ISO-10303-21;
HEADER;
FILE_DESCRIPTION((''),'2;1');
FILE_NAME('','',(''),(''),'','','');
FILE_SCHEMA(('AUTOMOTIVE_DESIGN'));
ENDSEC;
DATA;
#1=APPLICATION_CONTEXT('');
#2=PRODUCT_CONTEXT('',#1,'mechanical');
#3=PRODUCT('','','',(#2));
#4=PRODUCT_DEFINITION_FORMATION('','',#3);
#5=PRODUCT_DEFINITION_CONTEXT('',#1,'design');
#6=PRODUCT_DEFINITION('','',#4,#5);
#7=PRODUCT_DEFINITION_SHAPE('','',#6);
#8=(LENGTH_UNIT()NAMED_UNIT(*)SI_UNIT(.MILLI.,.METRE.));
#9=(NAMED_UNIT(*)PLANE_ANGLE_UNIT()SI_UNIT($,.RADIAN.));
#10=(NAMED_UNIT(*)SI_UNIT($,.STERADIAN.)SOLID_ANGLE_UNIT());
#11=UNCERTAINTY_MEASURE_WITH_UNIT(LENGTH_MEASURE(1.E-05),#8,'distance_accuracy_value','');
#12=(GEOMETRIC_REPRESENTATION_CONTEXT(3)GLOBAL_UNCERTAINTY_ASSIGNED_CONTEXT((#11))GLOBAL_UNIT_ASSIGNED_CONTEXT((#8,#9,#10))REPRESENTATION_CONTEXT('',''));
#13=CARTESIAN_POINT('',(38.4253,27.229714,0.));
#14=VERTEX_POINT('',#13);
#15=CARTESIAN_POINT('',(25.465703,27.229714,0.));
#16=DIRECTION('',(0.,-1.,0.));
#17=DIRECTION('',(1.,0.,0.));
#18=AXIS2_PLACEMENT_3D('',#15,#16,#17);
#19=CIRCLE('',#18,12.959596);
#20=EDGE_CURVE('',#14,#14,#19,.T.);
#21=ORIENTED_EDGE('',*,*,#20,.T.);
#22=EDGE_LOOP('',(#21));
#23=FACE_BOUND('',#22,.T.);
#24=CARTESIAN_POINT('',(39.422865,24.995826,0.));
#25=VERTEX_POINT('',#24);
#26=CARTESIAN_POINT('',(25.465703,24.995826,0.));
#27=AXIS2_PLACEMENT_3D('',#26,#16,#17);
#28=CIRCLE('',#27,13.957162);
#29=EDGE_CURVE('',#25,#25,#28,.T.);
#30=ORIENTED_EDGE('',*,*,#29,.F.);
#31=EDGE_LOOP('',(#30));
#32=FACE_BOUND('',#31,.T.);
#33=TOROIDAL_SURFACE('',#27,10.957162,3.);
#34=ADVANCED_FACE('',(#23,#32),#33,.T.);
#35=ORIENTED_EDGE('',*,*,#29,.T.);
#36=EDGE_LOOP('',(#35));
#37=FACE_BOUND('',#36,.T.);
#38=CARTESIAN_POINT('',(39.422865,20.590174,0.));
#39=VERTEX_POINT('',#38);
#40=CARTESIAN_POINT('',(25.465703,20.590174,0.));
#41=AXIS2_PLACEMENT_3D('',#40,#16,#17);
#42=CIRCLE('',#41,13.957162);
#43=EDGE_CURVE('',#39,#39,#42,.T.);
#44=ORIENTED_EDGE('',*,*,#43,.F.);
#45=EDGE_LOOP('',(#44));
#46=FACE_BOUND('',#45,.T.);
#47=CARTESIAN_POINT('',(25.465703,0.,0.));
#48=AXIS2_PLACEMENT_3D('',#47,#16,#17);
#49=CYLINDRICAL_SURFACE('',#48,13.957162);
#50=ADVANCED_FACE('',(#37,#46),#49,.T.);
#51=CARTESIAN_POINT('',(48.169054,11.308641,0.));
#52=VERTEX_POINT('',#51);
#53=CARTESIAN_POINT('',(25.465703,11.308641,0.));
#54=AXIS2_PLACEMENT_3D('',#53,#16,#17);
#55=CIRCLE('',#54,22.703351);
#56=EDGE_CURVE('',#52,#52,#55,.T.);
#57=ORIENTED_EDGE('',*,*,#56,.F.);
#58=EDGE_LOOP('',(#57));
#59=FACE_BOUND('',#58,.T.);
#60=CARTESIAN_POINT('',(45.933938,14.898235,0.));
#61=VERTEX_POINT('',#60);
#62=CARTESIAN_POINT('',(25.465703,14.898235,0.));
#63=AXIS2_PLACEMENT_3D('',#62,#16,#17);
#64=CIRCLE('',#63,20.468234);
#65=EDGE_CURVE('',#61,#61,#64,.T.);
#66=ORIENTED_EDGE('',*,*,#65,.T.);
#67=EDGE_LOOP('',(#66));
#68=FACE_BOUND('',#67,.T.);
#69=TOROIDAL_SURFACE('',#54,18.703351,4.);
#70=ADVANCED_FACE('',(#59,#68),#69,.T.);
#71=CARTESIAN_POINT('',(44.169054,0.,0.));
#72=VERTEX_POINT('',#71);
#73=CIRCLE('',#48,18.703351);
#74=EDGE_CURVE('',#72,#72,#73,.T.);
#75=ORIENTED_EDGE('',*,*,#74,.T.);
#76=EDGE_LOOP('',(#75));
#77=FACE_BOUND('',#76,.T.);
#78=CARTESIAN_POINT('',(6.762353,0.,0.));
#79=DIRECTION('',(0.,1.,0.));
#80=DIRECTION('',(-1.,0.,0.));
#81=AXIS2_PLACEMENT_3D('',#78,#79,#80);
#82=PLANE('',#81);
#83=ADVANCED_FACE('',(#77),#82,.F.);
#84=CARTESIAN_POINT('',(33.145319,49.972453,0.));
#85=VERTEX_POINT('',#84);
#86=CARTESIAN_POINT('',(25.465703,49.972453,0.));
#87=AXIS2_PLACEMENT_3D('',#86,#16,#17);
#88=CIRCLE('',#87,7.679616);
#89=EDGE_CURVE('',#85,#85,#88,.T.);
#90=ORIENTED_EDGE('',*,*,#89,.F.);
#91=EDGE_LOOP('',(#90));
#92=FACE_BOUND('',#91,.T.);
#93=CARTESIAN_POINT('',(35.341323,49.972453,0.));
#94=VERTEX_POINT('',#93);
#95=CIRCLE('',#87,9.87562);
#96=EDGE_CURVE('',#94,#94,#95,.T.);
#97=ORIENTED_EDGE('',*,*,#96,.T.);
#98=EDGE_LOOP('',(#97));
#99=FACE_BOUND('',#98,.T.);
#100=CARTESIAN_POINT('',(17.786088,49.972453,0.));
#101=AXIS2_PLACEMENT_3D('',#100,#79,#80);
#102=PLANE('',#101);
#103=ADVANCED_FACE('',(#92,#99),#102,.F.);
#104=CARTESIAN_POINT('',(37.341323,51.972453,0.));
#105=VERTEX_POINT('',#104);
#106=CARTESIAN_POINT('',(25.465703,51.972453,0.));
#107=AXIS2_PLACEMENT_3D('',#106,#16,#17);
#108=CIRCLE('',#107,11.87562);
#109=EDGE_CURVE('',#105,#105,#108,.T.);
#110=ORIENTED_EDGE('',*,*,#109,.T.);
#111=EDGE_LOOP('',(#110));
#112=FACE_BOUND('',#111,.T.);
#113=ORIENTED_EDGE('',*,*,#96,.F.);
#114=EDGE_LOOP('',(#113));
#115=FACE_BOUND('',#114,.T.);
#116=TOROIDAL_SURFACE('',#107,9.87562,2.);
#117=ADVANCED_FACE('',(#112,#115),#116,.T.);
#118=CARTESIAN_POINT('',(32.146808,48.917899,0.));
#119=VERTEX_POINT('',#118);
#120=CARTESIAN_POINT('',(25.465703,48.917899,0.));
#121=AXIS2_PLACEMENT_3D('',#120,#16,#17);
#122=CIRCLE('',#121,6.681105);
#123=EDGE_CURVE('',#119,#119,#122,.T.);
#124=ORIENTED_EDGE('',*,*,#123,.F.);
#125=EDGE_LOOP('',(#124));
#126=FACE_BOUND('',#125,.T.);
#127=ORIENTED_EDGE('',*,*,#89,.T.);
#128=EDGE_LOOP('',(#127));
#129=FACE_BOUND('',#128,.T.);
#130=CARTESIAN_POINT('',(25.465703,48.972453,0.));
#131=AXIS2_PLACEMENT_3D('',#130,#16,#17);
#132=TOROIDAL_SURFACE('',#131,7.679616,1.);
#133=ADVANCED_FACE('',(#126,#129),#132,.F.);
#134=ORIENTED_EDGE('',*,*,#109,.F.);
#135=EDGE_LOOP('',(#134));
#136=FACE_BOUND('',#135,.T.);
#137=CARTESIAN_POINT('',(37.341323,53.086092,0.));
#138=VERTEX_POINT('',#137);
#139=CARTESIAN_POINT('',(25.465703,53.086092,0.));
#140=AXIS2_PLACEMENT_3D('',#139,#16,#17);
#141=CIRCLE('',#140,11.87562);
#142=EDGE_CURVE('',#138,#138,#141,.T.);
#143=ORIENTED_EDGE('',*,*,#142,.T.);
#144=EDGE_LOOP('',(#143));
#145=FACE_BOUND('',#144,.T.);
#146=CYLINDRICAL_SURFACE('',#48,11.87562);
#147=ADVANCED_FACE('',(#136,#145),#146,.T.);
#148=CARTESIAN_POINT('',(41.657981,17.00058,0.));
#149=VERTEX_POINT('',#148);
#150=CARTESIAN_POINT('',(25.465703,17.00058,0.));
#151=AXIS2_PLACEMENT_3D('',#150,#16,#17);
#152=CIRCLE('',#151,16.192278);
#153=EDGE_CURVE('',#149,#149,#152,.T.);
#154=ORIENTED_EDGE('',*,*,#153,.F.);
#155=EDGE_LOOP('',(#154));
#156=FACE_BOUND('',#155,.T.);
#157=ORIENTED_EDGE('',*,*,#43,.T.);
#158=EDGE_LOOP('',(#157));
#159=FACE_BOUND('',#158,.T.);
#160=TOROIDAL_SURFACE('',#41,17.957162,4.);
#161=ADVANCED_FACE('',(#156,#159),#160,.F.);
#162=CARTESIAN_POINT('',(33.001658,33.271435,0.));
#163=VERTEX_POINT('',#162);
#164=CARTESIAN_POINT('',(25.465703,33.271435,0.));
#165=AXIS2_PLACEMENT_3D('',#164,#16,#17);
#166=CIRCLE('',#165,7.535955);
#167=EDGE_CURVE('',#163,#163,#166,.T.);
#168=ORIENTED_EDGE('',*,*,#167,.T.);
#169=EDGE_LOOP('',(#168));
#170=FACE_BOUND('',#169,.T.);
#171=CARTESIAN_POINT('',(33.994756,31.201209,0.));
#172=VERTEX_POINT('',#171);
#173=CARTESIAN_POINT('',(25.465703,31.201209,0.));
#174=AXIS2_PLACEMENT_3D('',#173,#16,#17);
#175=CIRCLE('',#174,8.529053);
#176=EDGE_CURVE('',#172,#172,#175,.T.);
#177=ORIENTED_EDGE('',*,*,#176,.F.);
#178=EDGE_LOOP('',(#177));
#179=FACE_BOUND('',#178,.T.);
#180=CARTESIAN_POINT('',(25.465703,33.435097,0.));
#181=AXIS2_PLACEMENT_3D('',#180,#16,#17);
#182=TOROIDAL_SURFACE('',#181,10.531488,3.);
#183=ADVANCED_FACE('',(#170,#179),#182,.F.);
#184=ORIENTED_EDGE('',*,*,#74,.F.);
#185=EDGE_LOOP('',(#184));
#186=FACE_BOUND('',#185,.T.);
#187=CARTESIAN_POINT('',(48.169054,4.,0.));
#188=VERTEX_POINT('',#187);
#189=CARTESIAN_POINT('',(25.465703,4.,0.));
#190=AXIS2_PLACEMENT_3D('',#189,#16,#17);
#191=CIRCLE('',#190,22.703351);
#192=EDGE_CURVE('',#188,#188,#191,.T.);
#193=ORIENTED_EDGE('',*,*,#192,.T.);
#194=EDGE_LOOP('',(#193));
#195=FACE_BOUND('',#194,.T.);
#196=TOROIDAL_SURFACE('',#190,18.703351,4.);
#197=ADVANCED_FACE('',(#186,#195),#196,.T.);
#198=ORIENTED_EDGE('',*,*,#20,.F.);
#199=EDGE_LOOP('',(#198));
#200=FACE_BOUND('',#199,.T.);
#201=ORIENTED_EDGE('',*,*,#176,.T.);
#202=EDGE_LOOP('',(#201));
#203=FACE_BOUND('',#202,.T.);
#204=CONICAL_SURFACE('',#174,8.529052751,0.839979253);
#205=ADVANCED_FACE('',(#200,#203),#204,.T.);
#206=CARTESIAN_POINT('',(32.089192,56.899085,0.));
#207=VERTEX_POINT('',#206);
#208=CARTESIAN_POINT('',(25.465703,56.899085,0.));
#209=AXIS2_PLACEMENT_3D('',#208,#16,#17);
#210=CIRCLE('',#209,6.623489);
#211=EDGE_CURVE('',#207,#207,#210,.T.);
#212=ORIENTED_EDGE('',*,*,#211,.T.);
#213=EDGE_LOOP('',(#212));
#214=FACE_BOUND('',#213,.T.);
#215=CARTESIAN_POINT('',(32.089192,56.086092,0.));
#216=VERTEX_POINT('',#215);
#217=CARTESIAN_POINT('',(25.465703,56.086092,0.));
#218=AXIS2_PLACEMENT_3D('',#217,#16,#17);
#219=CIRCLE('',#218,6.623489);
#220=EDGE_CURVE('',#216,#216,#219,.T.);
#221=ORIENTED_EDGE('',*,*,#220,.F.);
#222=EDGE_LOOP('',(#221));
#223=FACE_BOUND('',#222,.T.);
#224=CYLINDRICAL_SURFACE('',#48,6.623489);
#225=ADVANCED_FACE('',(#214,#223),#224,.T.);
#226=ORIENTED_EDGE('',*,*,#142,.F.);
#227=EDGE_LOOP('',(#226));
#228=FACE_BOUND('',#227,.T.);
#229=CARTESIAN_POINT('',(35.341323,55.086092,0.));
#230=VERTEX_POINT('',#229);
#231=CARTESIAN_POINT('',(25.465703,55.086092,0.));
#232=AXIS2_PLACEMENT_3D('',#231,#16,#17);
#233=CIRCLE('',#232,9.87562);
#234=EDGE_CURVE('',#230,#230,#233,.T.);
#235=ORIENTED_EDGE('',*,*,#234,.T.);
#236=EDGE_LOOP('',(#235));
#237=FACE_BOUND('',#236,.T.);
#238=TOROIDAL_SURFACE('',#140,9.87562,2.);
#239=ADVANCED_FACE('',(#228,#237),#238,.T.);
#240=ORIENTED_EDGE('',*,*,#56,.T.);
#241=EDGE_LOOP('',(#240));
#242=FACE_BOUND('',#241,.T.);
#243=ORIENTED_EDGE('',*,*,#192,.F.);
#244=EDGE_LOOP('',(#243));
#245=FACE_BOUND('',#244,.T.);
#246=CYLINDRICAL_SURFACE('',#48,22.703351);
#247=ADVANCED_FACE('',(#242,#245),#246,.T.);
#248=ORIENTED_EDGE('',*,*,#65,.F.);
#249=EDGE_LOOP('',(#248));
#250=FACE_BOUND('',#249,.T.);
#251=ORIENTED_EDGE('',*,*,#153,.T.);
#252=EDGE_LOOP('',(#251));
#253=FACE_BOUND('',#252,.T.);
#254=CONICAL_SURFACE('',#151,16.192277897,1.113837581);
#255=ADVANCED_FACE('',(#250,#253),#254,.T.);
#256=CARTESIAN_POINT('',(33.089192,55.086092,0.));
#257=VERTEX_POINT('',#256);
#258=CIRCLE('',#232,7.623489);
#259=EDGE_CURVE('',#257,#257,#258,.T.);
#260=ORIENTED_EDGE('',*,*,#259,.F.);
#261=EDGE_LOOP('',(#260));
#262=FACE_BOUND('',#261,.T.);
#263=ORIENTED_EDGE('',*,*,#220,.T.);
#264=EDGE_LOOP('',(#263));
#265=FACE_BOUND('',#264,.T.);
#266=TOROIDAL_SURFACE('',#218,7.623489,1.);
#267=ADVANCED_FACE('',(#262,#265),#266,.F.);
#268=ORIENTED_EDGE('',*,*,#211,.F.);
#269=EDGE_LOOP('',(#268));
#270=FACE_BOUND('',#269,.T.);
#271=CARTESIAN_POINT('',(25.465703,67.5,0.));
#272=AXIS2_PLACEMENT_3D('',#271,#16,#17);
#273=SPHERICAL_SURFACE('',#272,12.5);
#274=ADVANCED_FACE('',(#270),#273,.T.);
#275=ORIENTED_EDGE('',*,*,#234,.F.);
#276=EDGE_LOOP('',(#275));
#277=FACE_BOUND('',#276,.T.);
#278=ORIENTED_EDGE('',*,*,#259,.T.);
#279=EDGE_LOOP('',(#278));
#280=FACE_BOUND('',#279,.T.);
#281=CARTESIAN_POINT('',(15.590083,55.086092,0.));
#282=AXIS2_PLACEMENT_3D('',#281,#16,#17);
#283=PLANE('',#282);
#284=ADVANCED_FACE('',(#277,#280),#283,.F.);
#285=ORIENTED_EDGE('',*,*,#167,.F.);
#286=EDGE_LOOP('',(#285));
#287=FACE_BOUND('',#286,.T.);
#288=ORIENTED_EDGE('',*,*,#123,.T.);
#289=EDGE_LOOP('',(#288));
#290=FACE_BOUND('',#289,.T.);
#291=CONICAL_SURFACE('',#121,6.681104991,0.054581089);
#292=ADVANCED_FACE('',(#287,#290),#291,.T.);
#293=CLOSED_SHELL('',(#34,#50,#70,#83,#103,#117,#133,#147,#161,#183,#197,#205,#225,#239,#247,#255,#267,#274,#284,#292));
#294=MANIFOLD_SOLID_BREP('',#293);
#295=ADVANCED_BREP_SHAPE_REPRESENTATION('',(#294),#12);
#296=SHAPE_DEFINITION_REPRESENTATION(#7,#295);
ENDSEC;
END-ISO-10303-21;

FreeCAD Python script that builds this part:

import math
import FreeCAD as App
import Part
import Sketcher

V = App.Vector
Q = App.Units.Quantity

doc = App.newDocument("Part")
body = doc.addObject("PartDesign::Body", "Body")

# Sketch on XY plane
sketch1 = doc.addObject("Sketcher::SketchObject", "Sketch")
body.addObject(sketch1)
sketch1.AttachmentSupport = (doc.XY_Plane, [""])
sketch1.MapMode = "FlatFace"
sketch1.addGeometry(Part.LineSegment(V(2.762353, 11.308641, 0), V(2.762353, 4, 0)), False)
sketch1.addGeometry(Part.ArcOfCircle(Part.Circle(V(6.762353, 4, 0), V(0, 0, 1), 4), math.radians(180), math.radians(270)), False)
sketch1.addGeometry(Part.LineSegment(V(6.762353, 0, 0), V(25.465703, 0, 0)), False)
sketch1.addGeometry(Part.LineSegment(V(25.465703, 0, 0), V(25.465703, 80, 0)), False)
sketch1.addGeometry(Part.ArcOfCircle(Part.Circle(V(25.465703, 67.5, 0), V(0, 0, 1), 12.5), math.radians(90), math.radians(238.002712)), False)
sketch1.addGeometry(Part.LineSegment(V(18.842214, 56.899085, 0), V(18.842214, 56.086092, 0)), False)
sketch1.addGeometry(Part.ArcOfCircle(Part.Circle(V(17.842214, 56.086092, 0), V(0, 0, 1), 1), math.radians(-90), math.radians(0)), False)
sketch1.addGeometry(Part.LineSegment(V(17.842214, 55.086092, 0), V(15.590083, 55.086092, 0)), False)
sketch1.addGeometry(Part.ArcOfCircle(Part.Circle(V(15.590083, 53.086092, 0), V(0, 0, 1), 2), math.radians(90), math.radians(180)), False)
sketch1.addGeometry(Part.LineSegment(V(13.590083, 53.086092, 0), V(13.590083, 51.972453, 0)), False)
sketch1.addGeometry(Part.ArcOfCircle(Part.Circle(V(15.590083, 51.972453, 0), V(0, 0, 1), 2), math.radians(-180), math.radians(-90)), False)
sketch1.addGeometry(Part.LineSegment(V(15.590083, 49.972453, 0), V(17.786088, 49.972453, 0)), False)
sketch1.addGeometry(Part.ArcOfCircle(Part.Circle(V(17.786088, 48.972453, 0), V(0, 0, 1), 1), math.radians(-3.127266), math.radians(90)), False)
sketch1.addGeometry(Part.LineSegment(V(18.784598, 48.917899, 0), V(17.929748, 33.271435, 0)), False)
sketch1.addGeometry(Part.ArcOfCircle(Part.Circle(V(14.934216, 33.435097, 0), V(0, 0, 1), 3), math.radians(-48.127266), math.radians(-3.127266)), False)
sketch1.addGeometry(Part.LineSegment(V(16.936651, 31.201209, 0), V(12.506107, 27.229714, 0)), False)
sketch1.addGeometry(Part.ArcOfCircle(Part.Circle(V(14.508542, 24.995826, 0), V(0, 0, 1), 3), math.radians(131.872734), math.radians(180)), False)
sketch1.addGeometry(Part.LineSegment(V(11.508542, 24.995826, 0), V(11.508542, 20.590174, 0)), False)
sketch1.addGeometry(Part.ArcOfCircle(Part.Circle(V(7.508542, 20.590174, 0), V(0, 0, 1), 4), math.radians(-63.818192), math.radians(0)), False)
sketch1.addGeometry(Part.LineSegment(V(9.273425, 17.00058, 0), V(4.997469, 14.898235, 0)), False)
sketch1.addGeometry(Part.ArcOfCircle(Part.Circle(V(6.762353, 11.308641, 0), V(0, 0, 1), 4), math.radians(116.181808), math.radians(180)), False)
sketch1.addGeometry(Part.LineSegment(V(25.465703, 0, 0), V(25.465703, 80, 0)), True)  # axis
sketch1.addConstraint(Sketcher.Constraint("Tangent", 0, 2, 1, 1))
sketch1.addConstraint(Sketcher.Constraint("Tangent", 1, 2, 2, 1))
sketch1.addConstraint(Sketcher.Constraint("Coincident", 2, 2, 3, 1))
sketch1.addConstraint(Sketcher.Constraint("Coincident", 3, 2, 4, 1))
sketch1.addConstraint(Sketcher.Constraint("Coincident", 4, 2, 5, 1))
sketch1.addConstraint(Sketcher.Constraint("Tangent", 5, 2, 6, 2))
sketch1.addConstraint(Sketcher.Constraint("Tangent", 6, 1, 7, 1))
sketch1.addConstraint(Sketcher.Constraint("Tangent", 7, 2, 8, 1))
sketch1.addConstraint(Sketcher.Constraint("Tangent", 8, 2, 9, 1))
sketch1.addConstraint(Sketcher.Constraint("Tangent", 9, 2, 10, 1))
sketch1.addConstraint(Sketcher.Constraint("Tangent", 10, 2, 11, 1))
sketch1.addConstraint(Sketcher.Constraint("Tangent", 11, 2, 12, 2))
sketch1.addConstraint(Sketcher.Constraint("Tangent", 12, 1, 13, 1))
sketch1.addConstraint(Sketcher.Constraint("Tangent", 13, 2, 14, 2))
sketch1.addConstraint(Sketcher.Constraint("Tangent", 14, 1, 15, 1))
sketch1.addConstraint(Sketcher.Constraint("Tangent", 15, 2, 16, 1))
sketch1.addConstraint(Sketcher.Constraint("Tangent", 16, 2, 17, 1))
sketch1.addConstraint(Sketcher.Constraint("Tangent", 17, 2, 18, 2))
sketch1.addConstraint(Sketcher.Constraint("Tangent", 18, 1, 19, 1))
sketch1.addConstraint(Sketcher.Constraint("Tangent", 19, 2, 20, 1))
sketch1.addConstraint(Sketcher.Constraint("Tangent", 20, 2, 0, 1))
sketch1.addConstraint(Sketcher.Constraint("Vertical", 0))
sketch1.addConstraint(Sketcher.Constraint("Horizontal", 2))
sketch1.addConstraint(Sketcher.Constraint("Vertical", 3))
sketch1.addConstraint(Sketcher.Constraint("Vertical", 5))
sketch1.addConstraint(Sketcher.Constraint("Horizontal", 7))
sketch1.addConstraint(Sketcher.Constraint("Vertical", 9))
sketch1.addConstraint(Sketcher.Constraint("Horizontal", 11))
sketch1.addConstraint(Sketcher.Constraint("Vertical", 17))
sketch1.addConstraint(Sketcher.Constraint("Vertical", 21))
sketch1.addConstraint(Sketcher.Constraint("Coincident", 21, 1, 2, 2))
sketch1.addConstraint(Sketcher.Constraint("Equal", 8, 10))
sketch1.addConstraint(Sketcher.Constraint("Equal", 6, 12))
sketch1.addConstraint(Sketcher.Constraint("Equal", 14, 16))
sketch1.addConstraint(Sketcher.Constraint("Equal", 1, 18))
sketch1.addConstraint(Sketcher.Constraint("Equal", 18, 20))
sketch1.addConstraint(Sketcher.Constraint("PointOnObject", 1, 2, -1))
sketch1.addConstraint(Sketcher.Constraint("Vertical", 4, 3, 2, 2))
sketch1.addConstraint(Sketcher.Constraint("Equal", 3, 21))
sketch1.addConstraint(Sketcher.Constraint("Radius", 1, Q("4 mm")))
sketch1.addConstraint(Sketcher.Constraint("Radius", 6, Q("1 mm")))
sketch1.addConstraint(Sketcher.Constraint("Radius", 8, Q("2 mm")))
sketch1.addConstraint(Sketcher.Constraint("Radius", 14, Q("3 mm")))
sketch1.addConstraint(Sketcher.Constraint("Radius", 4, Q("12.5 mm")))
sketch1.addConstraint(Sketcher.Constraint("DistanceY", 3, 1, 3, 2, Q("80 mm")))
sketch1.addConstraint(Sketcher.Constraint("Distance", 15, Q("5.949999 mm")))
sketch1.addConstraint(Sketcher.Constraint("DistanceX", 14, 3, 6, 3, Q("2.907999 mm")))
sketch1.addConstraint(Sketcher.Constraint("Distance", 13, Q("15.669799 mm")))
sketch1.addConstraint(Sketcher.Constraint("DistanceX", 2, 1, 2, 2, Q("18.703351 mm")))
sketch1.addConstraint(Sketcher.Constraint("DistanceX", 7, 2, 7, 1, Q("2.252131 mm")))
sketch1.addConstraint(Sketcher.Constraint("DistanceY", 0, 2, 0, 1, Q("7.308641 mm")))
sketch1.addConstraint(Sketcher.Constraint("DistanceY", 9, 2, 9, 1, Q("1.113638 mm")))
sketch1.addConstraint(Sketcher.Constraint("DistanceX", -1, 1, 12, 1, Q("18.784598 mm")))
sketch1.addConstraint(Sketcher.Constraint("DistanceY", -1, 1, 12, 1, Q("48.917899 mm")))
sketch1.addConstraint(Sketcher.Constraint("DistanceX", 11, 1, 11, 2, Q("2.196004 mm")))
sketch1.addConstraint(Sketcher.Constraint("DistanceY", 5, 2, 5, 1, Q("0.812994 mm")))
sketch1.addConstraint(Sketcher.Constraint("DistanceY", 17, 2, 17, 1, Q("4.405652 mm")))
sketch1.addConstraint(Sketcher.Constraint("DistanceX", -1, 1, 16, 3, Q("14.508542 mm")))
revolution = doc.addObject("PartDesign::Revolution", "Revolution")
body.addObject(revolution)
revolution.Profile = sketch1
revolution.ReferenceAxis = (sketch1, ["Axis0"])
revolution.Angle = 360

doc.recompute()
